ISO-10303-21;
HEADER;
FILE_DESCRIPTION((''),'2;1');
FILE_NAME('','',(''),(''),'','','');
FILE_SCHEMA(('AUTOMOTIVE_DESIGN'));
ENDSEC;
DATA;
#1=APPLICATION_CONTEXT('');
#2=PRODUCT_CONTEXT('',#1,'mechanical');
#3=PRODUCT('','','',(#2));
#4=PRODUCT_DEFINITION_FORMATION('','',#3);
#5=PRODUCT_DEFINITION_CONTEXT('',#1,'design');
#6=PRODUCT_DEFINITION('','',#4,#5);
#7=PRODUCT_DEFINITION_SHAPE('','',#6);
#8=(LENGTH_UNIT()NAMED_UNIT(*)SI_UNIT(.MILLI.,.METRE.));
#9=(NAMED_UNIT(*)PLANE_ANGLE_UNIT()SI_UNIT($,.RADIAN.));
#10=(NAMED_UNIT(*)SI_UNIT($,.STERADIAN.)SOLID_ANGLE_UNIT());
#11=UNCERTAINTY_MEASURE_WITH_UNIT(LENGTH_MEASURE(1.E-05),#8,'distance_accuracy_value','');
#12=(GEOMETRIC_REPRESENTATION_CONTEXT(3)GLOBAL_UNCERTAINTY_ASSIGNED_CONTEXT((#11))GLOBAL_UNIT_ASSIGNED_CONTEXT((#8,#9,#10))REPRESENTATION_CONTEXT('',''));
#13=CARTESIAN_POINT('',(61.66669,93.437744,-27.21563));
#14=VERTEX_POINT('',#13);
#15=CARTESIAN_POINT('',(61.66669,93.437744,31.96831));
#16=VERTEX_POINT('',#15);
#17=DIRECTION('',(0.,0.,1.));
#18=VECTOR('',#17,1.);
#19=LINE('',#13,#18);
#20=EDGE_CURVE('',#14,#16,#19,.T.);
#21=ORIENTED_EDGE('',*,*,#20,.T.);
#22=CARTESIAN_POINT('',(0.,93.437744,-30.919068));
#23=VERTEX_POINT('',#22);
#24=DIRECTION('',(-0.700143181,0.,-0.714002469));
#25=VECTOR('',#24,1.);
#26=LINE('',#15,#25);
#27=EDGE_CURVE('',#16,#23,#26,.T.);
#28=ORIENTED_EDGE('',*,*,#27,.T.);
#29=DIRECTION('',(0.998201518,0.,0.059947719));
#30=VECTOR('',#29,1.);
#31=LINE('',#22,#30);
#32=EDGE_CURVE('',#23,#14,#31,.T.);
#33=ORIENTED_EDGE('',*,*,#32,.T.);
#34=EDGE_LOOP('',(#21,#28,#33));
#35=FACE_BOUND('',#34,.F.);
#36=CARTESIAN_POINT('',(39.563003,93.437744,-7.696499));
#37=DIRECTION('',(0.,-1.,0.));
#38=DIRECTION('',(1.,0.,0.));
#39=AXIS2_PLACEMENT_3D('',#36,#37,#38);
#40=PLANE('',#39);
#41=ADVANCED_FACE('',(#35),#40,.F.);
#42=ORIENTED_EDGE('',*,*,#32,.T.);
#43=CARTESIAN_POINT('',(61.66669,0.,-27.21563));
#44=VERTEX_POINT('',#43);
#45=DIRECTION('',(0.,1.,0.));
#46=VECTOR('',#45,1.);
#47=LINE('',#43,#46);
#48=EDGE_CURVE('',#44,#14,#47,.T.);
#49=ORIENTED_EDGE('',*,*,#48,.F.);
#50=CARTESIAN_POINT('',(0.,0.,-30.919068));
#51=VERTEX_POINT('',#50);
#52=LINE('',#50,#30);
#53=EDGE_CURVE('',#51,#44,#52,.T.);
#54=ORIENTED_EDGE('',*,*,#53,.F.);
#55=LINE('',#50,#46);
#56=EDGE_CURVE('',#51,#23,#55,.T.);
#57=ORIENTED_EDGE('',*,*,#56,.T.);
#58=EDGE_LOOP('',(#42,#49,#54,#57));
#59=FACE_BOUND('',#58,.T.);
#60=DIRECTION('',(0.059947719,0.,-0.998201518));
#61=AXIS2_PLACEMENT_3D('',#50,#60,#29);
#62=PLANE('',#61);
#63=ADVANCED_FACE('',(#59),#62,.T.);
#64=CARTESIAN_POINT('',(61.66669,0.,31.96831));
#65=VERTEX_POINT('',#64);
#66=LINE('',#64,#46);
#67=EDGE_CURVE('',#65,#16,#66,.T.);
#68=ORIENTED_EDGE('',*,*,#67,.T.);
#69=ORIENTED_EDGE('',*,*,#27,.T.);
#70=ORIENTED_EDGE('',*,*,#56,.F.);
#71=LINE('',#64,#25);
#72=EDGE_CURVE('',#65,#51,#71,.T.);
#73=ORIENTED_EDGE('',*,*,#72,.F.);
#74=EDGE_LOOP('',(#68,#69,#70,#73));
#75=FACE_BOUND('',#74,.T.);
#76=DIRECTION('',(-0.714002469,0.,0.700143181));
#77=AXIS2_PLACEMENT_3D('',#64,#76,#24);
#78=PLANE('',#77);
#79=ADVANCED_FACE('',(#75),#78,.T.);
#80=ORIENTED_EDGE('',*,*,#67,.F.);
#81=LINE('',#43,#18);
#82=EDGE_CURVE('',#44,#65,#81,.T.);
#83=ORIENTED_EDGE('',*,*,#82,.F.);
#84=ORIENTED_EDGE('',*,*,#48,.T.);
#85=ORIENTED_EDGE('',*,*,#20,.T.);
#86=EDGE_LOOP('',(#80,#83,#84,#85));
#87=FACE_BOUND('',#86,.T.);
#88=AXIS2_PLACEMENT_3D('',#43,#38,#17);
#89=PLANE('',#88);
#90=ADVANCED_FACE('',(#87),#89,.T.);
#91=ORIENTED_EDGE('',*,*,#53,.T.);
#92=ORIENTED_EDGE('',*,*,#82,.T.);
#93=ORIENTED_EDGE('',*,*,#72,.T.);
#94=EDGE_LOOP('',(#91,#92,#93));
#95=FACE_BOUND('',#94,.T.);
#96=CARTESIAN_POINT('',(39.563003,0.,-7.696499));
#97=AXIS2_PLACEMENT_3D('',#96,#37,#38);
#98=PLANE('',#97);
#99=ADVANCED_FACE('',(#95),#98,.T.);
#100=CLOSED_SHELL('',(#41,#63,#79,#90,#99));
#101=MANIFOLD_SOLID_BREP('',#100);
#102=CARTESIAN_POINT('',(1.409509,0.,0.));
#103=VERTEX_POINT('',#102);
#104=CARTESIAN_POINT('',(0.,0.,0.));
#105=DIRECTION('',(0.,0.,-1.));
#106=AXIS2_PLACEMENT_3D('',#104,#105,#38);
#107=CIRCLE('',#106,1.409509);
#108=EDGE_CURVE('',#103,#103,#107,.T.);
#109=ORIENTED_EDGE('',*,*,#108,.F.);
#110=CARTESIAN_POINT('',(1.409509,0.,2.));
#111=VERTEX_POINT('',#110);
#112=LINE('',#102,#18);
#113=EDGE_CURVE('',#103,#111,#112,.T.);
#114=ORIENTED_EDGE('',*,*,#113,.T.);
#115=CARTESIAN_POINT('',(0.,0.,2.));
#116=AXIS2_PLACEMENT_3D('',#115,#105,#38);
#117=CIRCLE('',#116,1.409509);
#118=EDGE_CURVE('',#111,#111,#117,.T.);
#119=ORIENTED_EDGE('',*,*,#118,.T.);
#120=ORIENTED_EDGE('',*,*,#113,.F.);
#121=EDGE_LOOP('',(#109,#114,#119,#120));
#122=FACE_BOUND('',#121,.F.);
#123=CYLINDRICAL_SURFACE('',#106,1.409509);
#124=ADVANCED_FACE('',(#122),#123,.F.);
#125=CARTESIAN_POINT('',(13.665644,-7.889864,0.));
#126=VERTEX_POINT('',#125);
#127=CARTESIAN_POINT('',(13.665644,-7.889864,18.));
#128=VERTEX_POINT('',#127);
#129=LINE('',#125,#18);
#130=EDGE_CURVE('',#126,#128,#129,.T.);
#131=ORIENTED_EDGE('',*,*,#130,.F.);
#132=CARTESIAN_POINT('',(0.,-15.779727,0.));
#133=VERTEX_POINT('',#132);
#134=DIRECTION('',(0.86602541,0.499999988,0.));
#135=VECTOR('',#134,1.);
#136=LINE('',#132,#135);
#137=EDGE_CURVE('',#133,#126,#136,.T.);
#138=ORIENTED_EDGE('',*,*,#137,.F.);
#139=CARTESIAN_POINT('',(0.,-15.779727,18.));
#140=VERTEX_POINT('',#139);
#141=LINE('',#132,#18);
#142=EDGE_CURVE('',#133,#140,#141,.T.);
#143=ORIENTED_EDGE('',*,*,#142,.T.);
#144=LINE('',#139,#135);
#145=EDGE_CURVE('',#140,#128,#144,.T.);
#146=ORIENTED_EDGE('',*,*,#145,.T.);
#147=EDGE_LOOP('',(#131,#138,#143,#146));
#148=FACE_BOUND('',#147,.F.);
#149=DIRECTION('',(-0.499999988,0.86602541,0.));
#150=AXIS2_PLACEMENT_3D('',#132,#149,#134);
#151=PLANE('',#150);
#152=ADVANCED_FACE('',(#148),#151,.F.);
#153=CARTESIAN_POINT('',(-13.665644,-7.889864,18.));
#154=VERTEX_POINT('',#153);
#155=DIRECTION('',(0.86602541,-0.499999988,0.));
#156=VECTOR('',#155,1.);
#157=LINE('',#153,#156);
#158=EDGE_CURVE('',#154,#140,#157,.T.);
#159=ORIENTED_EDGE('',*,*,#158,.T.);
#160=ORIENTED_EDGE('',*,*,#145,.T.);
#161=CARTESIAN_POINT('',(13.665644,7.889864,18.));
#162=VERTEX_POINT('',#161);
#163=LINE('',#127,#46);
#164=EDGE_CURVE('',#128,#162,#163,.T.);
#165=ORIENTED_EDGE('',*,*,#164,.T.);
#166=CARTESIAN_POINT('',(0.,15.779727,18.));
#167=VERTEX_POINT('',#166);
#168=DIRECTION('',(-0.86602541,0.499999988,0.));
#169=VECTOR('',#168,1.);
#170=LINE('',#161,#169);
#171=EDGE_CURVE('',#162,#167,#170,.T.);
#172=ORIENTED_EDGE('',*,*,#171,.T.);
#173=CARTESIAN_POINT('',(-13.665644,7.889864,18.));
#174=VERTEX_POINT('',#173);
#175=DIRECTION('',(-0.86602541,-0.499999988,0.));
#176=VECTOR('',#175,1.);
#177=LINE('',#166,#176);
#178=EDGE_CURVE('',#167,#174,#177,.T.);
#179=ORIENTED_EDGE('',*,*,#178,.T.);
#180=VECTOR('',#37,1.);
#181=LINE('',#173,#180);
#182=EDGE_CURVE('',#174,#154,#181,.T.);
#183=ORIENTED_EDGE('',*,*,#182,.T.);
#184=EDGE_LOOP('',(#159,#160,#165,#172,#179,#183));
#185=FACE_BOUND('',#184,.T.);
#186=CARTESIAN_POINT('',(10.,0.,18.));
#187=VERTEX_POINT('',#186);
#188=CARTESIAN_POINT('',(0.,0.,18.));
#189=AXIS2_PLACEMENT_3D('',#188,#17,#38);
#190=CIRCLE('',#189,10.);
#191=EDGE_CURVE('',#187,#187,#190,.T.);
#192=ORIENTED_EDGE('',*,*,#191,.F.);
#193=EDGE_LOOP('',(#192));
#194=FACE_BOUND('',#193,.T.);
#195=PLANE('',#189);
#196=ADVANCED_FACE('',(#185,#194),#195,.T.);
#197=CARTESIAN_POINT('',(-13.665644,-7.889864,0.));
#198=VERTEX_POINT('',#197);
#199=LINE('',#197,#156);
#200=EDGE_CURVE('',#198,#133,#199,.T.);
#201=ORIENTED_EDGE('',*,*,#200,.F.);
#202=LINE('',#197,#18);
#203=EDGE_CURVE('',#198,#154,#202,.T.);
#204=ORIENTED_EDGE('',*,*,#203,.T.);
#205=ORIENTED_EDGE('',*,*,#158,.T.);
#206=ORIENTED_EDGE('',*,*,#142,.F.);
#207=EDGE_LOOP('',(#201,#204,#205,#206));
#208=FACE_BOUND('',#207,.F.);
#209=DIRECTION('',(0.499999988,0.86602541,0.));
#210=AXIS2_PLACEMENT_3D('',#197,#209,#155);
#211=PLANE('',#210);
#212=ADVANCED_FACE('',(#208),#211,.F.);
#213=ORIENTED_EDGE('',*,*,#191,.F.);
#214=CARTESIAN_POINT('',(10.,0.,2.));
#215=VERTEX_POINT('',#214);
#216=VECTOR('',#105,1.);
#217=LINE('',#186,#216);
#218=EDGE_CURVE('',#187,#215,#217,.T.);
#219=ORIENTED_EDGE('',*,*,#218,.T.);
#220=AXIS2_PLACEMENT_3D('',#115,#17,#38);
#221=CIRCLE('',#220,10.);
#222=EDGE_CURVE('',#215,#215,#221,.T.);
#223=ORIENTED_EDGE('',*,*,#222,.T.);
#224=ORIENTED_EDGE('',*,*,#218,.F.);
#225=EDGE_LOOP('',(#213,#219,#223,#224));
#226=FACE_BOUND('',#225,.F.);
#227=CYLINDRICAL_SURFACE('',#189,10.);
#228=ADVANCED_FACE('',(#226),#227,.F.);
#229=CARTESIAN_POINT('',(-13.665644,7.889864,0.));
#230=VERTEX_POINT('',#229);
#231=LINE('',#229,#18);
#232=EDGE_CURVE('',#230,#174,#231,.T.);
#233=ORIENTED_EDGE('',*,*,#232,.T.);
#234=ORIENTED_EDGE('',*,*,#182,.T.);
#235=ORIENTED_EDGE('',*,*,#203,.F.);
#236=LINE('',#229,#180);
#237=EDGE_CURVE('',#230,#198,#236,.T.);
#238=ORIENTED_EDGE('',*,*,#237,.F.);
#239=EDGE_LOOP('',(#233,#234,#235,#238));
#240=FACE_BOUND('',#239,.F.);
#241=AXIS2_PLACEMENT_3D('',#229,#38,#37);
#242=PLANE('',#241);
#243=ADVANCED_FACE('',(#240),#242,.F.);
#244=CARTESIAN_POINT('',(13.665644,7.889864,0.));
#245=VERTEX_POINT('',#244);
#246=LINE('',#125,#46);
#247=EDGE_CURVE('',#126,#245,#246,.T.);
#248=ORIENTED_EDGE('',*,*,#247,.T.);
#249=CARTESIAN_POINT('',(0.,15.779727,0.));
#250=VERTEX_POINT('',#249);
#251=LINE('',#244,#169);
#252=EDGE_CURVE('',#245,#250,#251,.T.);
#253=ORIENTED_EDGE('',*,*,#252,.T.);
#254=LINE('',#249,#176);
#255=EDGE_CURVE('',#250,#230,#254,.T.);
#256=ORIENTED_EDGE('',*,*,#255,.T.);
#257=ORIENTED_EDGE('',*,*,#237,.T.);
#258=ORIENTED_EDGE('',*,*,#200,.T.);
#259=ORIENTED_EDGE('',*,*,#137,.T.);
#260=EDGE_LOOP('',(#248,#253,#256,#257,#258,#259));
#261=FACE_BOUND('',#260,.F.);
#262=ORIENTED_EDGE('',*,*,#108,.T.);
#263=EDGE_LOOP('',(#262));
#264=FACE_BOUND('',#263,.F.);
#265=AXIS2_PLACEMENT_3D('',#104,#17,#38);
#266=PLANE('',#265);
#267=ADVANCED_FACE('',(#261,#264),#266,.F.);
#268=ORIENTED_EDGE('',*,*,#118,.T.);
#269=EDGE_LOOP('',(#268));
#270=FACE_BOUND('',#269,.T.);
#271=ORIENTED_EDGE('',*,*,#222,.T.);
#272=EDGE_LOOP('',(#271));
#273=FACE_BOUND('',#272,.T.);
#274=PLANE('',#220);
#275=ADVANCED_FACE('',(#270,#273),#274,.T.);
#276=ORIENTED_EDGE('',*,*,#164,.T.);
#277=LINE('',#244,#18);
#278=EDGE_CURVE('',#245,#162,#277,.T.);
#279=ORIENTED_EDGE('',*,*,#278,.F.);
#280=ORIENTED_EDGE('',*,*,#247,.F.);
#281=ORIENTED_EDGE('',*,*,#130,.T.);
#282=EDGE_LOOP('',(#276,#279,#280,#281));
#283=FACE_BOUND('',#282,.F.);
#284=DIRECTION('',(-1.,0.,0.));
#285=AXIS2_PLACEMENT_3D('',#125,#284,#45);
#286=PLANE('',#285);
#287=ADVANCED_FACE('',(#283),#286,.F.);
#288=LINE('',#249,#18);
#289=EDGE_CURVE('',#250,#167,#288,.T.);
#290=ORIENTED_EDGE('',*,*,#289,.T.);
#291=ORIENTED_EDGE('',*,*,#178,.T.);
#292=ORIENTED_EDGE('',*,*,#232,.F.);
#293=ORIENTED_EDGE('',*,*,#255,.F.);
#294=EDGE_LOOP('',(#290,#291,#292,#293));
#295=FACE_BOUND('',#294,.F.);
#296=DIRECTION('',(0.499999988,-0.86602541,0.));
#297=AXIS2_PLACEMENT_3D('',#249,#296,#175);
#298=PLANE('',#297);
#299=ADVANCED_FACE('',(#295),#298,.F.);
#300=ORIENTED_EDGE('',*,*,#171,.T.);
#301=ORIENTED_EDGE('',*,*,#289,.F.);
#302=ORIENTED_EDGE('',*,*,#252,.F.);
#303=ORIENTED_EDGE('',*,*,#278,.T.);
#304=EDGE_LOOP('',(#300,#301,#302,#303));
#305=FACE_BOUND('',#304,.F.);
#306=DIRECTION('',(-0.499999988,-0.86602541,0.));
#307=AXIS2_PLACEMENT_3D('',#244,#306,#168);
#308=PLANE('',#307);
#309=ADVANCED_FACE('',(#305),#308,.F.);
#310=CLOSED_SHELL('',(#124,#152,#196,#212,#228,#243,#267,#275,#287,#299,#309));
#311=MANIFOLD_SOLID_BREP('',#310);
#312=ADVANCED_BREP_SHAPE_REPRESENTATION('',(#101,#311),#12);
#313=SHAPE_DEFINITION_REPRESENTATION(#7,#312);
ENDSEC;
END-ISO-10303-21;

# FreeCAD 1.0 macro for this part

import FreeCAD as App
import Part
import Sketcher
Q = App.Units.Quantity


def add_polygon(sketch, points):
    """Adds a closed chain of lines whose ends are joined by coincident constraints."""
    first, n = sketch.GeometryCount, len(points)
    for a, b in zip(points, points[1:] + points[:1]):
        sketch.addGeometry(Part.LineSegment(App.Vector(*a, 0), App.Vector(*b, 0)), False)
    for i in range(n):
        sketch.addConstraint(Sketcher.Constraint("Coincident", first + i, 2, first + (i + 1) % n, 1))

doc = App.newDocument("Part")
params = doc.addObject("Spreadsheet::Sheet", "Params")
for row, (alias, value) in enumerate([
    ("pad1_length", "18 mm"),
    ("sketch2_diameter", "20 mm"),
    ("pocket1_length", "16 mm"),
    ("pocket2_length", "25 mm"),
    ("pad2_length", "93.437744 mm"),
], start=1):
    params.set(f"A{row}", alias)
    params.set(f"B{row}", "=" + value)
    params.setAlias(f"B{row}", alias)

body = doc.addObject("PartDesign::Body", "Body")

# Sketch on XY plane
sketch1 = body.newObject("Sketcher::SketchObject", "Sketch")
sketch1.AttachmentSupport = (doc.getObject("XY_Plane"), [""])
sketch1.MapMode = "FlatFace"
add_polygon(sketch1, [(14, -8), (14, 8), (0, 16), (-14, 8), (-14, -8), (0, -16)])  # lines 0-5
sketch1.addConstraint([
    Sketcher.Constraint("Vertical", 0),
    Sketcher.Constraint("Vertical", 3),
    Sketcher.Constraint("Symmetric", 0, 2, 3, 2, -1, 1),
    Sketcher.Constraint("Symmetric", 1, 2, 4, 2, -1, 1),
    Sketcher.Constraint("PointOnObject", 1, 2, -2),
    Sketcher.Constraint("Parallel", 2, 5),
    Sketcher.Constraint("Horizontal", 0, 2, 2, 2),
    Sketcher.Constraint("Angle", 1, Q("150.000001 deg")),
    Sketcher.Constraint("DistanceY", 0, 1, 0, 2, Q("15.779728 mm")),
    Sketcher.Constraint("DistanceX", 2, 2, 0, 2, Q("27.331288 mm")),
])
pad1 = body.newObject("PartDesign::Pad", "Pad")
pad1.Profile = sketch1
pad1.setExpression("Length", "Params.pad1_length")

# Sketch on XY plane
sketch2 = body.newObject("Sketcher::SketchObject", "Sketch001")
sketch2.AttachmentSupport = (doc.getObject("XY_Plane"), [""])
sketch2.MapMode = "FlatFace"
sketch2.AttachmentOffset = App.Placement(App.Vector(0, 0, 18), App.Rotation())
sketch2.addGeometry(Part.Circle(App.Vector(0, 0, 0), App.Vector(0, 0, 1), 10), False)
sketch2.addConstraint([
    Sketcher.Constraint("Coincident", 0, 3, -1, 1),
    Sketcher.Constraint("Diameter", 0, Q("20 mm")),
])
sketch2.setExpression("Constraints[1]", "Params.sketch2_diameter")
pocket1 = body.newObject("PartDesign::Pocket", "Pocket")
pocket1.Profile = sketch2
pocket1.setExpression("Length", "Params.pocket1_length")

# Sketch on XY plane
sketch3 = body.newObject("Sketcher::SketchObject", "Sketch002")
sketch3.AttachmentSupport = (doc.getObject("XY_Plane"), [""])
sketch3.MapMode = "FlatFace"
sketch3.addGeometry(Part.Circle(App.Vector(0, 0, 0), App.Vector(0, 0, 1), 1.4), False)
sketch3.addConstraint([
    Sketcher.Constraint("Coincident", 0, 3, -1, 1),
    Sketcher.Constraint("Diameter", 0, Q("2.819018 mm")),
])
pocket2 = body.newObject("PartDesign::Pocket", "Pocket001")
pocket2.Profile = sketch3
pocket2.setExpression("Length", "Params.pocket2_length")
pocket2.Reversed = True
body2 = doc.addObject("PartDesign::Body", "Body001")

# Sketch on XZ plane
sketch4 = body2.newObject("Sketcher::SketchObject", "Sketch003")
sketch4.AttachmentSupport = (doc.getObject("XZ_Plane001"), [""])
sketch4.MapMode = "FlatFace"
add_polygon(sketch4, [(62, 32), (0, -31), (62, -27)])  # lines 0-2
sketch4.addConstraint([
    Sketcher.Constraint("Vertical", 2),
    Sketcher.Constraint("PointOnObject", 0, 2, -2),
    Sketcher.Constraint("DistanceY", 2, 1, 2, 2, Q("59.18394 mm")),
    Sketcher.Constraint("DistanceX", -1, 1, 1, 2, Q("61.66669 mm")),
    Sketcher.Constraint("DistanceY", 1, 2, -1, 1, Q("27.21563 mm")),
    Sketcher.Constraint("Distance", 0, Q("88.077256 mm")),
])
pad2 = body2.newObject("PartDesign::Pad", "Pad001")
pad2.Profile = sketch4
pad2.setExpression("Length", "Params.pad2_length")
pad2.Reversed = True

doc.recompute()
